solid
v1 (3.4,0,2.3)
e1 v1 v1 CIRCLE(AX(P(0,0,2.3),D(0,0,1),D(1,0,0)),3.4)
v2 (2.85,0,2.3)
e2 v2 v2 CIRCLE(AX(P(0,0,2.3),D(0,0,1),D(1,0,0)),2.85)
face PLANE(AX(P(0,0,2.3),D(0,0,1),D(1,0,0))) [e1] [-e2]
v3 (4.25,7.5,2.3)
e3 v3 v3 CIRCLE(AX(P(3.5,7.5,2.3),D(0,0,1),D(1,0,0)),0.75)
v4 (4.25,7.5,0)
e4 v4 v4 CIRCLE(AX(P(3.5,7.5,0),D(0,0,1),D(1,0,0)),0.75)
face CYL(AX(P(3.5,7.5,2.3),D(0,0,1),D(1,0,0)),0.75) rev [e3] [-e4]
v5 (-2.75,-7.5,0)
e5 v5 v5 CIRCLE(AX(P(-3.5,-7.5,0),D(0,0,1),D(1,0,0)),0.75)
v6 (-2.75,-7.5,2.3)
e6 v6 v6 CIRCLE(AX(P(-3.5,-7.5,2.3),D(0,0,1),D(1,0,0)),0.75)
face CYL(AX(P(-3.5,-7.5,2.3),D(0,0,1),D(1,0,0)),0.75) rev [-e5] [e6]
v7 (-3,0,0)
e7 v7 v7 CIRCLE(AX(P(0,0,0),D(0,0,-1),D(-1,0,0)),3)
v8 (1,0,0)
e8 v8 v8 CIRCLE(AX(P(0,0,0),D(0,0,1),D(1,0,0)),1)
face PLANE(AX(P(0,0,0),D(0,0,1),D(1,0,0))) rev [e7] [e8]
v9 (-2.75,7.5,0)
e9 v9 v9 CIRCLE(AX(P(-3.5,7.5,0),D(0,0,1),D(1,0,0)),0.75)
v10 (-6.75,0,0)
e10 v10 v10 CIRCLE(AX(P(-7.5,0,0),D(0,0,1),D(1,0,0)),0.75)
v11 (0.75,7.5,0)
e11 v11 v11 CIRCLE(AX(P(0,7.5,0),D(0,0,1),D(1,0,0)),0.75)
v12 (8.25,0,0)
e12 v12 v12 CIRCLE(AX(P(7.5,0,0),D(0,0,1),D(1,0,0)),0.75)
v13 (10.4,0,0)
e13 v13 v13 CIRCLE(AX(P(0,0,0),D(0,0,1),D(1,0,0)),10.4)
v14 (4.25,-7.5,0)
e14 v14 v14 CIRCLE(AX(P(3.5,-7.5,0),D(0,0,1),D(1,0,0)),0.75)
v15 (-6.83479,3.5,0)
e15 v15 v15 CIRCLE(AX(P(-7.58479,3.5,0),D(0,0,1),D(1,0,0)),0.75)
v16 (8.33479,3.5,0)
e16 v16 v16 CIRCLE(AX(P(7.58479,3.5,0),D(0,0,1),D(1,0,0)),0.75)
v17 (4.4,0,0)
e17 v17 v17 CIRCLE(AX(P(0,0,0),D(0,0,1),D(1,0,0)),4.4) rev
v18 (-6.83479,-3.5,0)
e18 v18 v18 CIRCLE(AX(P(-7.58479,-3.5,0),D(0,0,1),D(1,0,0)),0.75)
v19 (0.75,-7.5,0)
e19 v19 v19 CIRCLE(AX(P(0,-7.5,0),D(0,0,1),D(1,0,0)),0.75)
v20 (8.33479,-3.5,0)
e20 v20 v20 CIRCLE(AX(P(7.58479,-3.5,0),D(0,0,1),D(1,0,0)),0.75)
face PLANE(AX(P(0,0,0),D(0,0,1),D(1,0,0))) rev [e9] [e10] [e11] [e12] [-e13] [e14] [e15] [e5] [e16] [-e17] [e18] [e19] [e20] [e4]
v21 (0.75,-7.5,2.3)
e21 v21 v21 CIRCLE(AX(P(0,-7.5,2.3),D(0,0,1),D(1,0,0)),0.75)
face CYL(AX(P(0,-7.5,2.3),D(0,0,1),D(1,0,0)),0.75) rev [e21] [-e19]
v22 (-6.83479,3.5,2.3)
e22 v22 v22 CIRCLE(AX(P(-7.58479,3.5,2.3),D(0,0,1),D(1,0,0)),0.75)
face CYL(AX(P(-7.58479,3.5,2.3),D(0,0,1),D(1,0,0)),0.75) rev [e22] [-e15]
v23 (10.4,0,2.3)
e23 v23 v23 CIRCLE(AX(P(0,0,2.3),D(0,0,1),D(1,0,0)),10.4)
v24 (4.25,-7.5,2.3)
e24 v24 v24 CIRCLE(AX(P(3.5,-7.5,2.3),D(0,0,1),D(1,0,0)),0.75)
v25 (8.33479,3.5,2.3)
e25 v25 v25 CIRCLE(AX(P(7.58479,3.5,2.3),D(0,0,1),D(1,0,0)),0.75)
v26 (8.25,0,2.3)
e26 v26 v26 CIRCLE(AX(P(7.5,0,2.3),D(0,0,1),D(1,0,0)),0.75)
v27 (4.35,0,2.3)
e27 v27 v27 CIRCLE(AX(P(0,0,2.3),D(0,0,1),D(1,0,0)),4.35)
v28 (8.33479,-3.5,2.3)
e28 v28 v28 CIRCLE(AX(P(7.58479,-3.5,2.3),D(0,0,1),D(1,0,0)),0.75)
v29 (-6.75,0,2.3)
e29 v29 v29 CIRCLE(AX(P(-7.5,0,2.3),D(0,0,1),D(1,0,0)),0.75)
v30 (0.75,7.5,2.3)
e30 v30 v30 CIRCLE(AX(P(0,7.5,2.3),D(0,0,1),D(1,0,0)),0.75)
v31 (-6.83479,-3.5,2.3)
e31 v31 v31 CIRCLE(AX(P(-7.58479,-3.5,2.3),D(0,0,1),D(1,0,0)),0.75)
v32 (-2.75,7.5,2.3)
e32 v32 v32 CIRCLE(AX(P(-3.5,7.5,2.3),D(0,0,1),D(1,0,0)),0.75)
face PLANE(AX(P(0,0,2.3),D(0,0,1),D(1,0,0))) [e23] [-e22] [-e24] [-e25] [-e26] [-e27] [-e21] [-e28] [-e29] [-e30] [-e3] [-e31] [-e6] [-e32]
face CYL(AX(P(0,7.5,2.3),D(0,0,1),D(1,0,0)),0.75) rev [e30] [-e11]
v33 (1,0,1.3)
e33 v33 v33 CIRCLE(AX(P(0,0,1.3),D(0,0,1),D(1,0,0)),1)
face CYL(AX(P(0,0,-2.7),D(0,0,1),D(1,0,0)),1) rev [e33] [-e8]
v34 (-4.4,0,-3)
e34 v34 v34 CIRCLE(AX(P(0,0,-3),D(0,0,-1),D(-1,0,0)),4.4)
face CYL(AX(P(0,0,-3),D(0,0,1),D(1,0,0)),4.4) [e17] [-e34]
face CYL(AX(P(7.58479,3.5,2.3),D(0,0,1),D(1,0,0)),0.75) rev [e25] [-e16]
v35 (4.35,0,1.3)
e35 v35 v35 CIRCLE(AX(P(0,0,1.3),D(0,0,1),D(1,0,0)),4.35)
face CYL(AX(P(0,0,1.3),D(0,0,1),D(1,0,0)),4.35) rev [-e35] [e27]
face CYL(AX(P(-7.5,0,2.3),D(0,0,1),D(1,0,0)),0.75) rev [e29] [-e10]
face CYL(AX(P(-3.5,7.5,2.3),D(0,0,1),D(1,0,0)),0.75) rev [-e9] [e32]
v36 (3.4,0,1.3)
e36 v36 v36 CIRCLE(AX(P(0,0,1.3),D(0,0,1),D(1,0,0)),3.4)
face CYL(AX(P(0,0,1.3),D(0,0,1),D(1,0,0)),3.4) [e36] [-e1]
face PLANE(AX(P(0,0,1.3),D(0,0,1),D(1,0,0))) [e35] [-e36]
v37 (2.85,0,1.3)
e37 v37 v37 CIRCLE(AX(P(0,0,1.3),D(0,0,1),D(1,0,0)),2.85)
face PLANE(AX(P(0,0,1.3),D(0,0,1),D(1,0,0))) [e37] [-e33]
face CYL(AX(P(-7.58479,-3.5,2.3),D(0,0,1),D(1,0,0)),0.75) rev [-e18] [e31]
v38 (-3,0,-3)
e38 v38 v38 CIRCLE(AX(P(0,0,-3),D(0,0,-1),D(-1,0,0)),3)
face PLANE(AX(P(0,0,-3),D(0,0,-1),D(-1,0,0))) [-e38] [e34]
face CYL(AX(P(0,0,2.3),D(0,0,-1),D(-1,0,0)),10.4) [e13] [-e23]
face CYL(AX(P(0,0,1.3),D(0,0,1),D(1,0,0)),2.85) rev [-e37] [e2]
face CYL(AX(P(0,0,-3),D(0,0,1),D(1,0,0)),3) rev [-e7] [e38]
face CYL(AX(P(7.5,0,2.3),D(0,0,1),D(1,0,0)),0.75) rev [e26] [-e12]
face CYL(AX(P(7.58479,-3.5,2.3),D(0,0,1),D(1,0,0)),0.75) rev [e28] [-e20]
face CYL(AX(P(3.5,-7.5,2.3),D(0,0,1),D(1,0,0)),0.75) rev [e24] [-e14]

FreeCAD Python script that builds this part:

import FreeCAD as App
import Part
import Sketcher
Q = App.Units.Quantity

doc = App.newDocument("Part")
body = doc.addObject("PartDesign::Body", "Body")

# Sketch on XY plane
sketch1 = body.newObject("Sketcher::SketchObject", "Sketch")
sketch1.AttachmentSupport = (doc.getObject("XY_Plane"), [""])
sketch1.MapMode = "FlatFace"
sketch1.addGeometry(Part.Circle(App.Vector(0, 0, 0), App.Vector(0, 0, 1), 10), False)
sketch1.addConstraint(Sketcher.Constraint("Coincident", 0, 3, -1, 1))
sketch1.addConstraint(Sketcher.Constraint("Diameter", 0, Q("20.8 mm")))
pad1 = body.newObject("PartDesign::Pad", "Pad")
pad1.Profile = sketch1
pad1.Length = 2.3

# Sketch on XY plane
sketch2 = body.newObject("Sketcher::SketchObject", "Sketch001")
sketch2.AttachmentSupport = (doc.getObject("XY_Plane"), [""])
sketch2.MapMode = "FlatFace"
sketch2.AttachmentOffset = App.Placement(App.Vector(0, 0, 2.3), App.Rotation())
sketch2.addGeometry(Part.Circle(App.Vector(0, 7.5, 0), App.Vector(0, 0, 1), 0.8), False)
sketch2.addGeometry(Part.Circle(App.Vector(-3.5, 7.5, 0), App.Vector(0, 0, 1), 0.8), False)
sketch2.addGeometry(Part.Circle(App.Vector(3.5, 7.5, 0), App.Vector(0, 0, 1), 0.8), False)
sketch2.addGeometry(Part.Circle(App.Vector(-7.5, 0, 0), App.Vector(0, 0, 1), 0.8), False)
sketch2.addGeometry(Part.Circle(App.Vector(-7.6, 3.5, 0), App.Vector(0, 0, 1), 0.8), False)
sketch2.addGeometry(Part.Circle(App.Vector(-7.6, -3.5, 0), App.Vector(0, 0, 1), 0.8), False)
sketch2.addConstraint(Sketcher.Constraint("Equal", 0, 1))
sketch2.addConstraint(Sketcher.Constraint("Equal", 1, 2))
sketch2.addConstraint(Sketcher.Constraint("Equal", 2, 3))
sketch2.addConstraint(Sketcher.Constraint("Equal", 3, 4))
sketch2.addConstraint(Sketcher.Constraint("Equal", 4, 5))
sketch2.addConstraint(Sketcher.Constraint("Symmetric", 1, 3, 2, 3, -2))
sketch2.addConstraint(Sketcher.Constraint("Symmetric", 4, 3, 5, 3, -1))
sketch2.addConstraint(Sketcher.Constraint("PointOnObject", 0, 3, -2))
sketch2.addConstraint(Sketcher.Constraint("PointOnObject", 3, 3, -1))
sketch2.addConstraint(Sketcher.Constraint("Horizontal", 0, 3, 1, 3))
sketch2.addConstraint(Sketcher.Constraint("Diameter", 0, Q("1.5 mm")))
sketch2.addConstraint(Sketcher.Constraint("DistanceX", 1, 3, 2, 3, Q("7 mm")))
sketch2.addConstraint(Sketcher.Constraint("DistanceX", 3, 3, 1, 3, Q("4 mm")))
sketch2.addConstraint(Sketcher.Constraint("DistanceY", 4, 3, 1, 3, Q("4 mm")))
sketch2.addConstraint(Sketcher.Constraint("DistanceY", 5, 3, 4, 3, Q("7 mm")))
sketch2.addConstraint(Sketcher.Constraint("DistanceX", 4, 3, -1, 1, Q("7.58479 mm")))
doc.recompute()
hole = body.newObject("PartDesign::Hole", "Hole")
hole.Profile = sketch2
hole.ThreadType = "None"
hole.Diameter = 1.5
hole.DepthType = "ThroughAll"
doc.recompute()

mirrored = body.newObject("PartDesign::Mirrored", "Mirrored")
mirrored.Originals = [hole]
mirrored.MirrorPlane = (doc.getObject("XZ_Plane"), [""])
body.Tip = mirrored
doc.recompute()

mirrored2 = body.newObject("PartDesign::Mirrored", "Mirrored001")
mirrored2.Originals = [hole]
mirrored2.MirrorPlane = (doc.getObject("YZ_Plane"), [""])
body.Tip = mirrored2

# Sketch on XY plane
sketch3 = body.newObject("Sketcher::SketchObject", "Sketch002")
sketch3.AttachmentSupport = (doc.getObject("XY_Plane"), [""])
sketch3.MapMode = "FlatFace"
sketch3.addGeometry(Part.Circle(App.Vector(0, 0, 0), App.Vector(0, 0, 1), 4.4), False)
sketch3.addGeometry(Part.Circle(App.Vector(0, 0, 0), App.Vector(0, 0, 1), 3), False)
sketch3.addConstraint(Sketcher.Constraint("Coincident", 0, 3, -1, 1))
sketch3.addConstraint(Sketcher.Constraint("Coincident", 1, 3, -1, 1))
sketch3.addConstraint(Sketcher.Constraint("Diameter", 1, Q("6 mm")))
sketch3.addConstraint(Sketcher.Constraint("Diameter", 0, Q("8.8 mm")))
pad2 = body.newObject("PartDesign::Pad", "Pad001")
pad2.Profile = sketch3
pad2.Length = 3
pad2.Reversed = True

# Sketch on XY plane
sketch4 = body.newObject("Sketcher::SketchObject", "Sketch003")
sketch4.AttachmentSupport = (doc.getObject("XY_Plane"), [""])
sketch4.MapMode = "FlatFace"
sketch4.AttachmentOffset = App.Placement(App.Vector(0, 0, 2.3), App.Rotation())
sketch4.addGeometry(Part.Circle(App.Vector(0, 0, 0), App.Vector(0, 0, 1), 4.3), False)
sketch4.addGeometry(Part.Circle(App.Vector(0, 0, 0), App.Vector(0, 0, 1), 3.4), False)
sketch4.addConstraint(Sketcher.Constraint("Coincident", 0, 3, -1, 1))
sketch4.addConstraint(Sketcher.Constraint("Coincident", 1, 3, -1, 1))
sketch4.addConstraint(Sketcher.Constraint("Diameter", 0, Q("8.7 mm")))
sketch4.addConstraint(Sketcher.Constraint("Diameter", 1, Q("6.8 mm")))
pocket1 = body.newObject("PartDesign::Pocket", "Pocket")
pocket1.Profile = sketch4
pocket1.Length = 1

# Sketch on XY plane
sketch5 = body.newObject("Sketcher::SketchObject", "Sketch004")
sketch5.AttachmentSupport = (doc.getObject("XY_Plane"), [""])
sketch5.MapMode = "FlatFace"
sketch5.AttachmentOffset = App.Placement(App.Vector(0, 0, 2.3), App.Rotation())
sketch5.addGeometry(Part.Circle(App.Vector(0, 0, 0), App.Vector(0, 0, 1), 2.9), False)
sketch5.addConstraint(Sketcher.Constraint("Coincident", 0, 3, -1, 1))
sketch5.addConstraint(Sketcher.Constraint("Diameter", 0, Q("5.7 mm")))
pocket2 = body.newObject("PartDesign::Pocket", "Pocket001")
pocket2.Profile = sketch5
pocket2.Length = 1

# Sketch on XY plane
sketch6 = body.newObject("Sketcher::SketchObject", "Sketch005")
sketch6.AttachmentSupport = (doc.getObject("XY_Plane"), [""])
sketch6.MapMode = "FlatFace"
sketch6.AttachmentOffset = App.Placement(App.Vector(0, 0, 1.3), App.Rotation())
sketch6.addGeometry(Part.Circle(App.Vector(0, 0, 0), App.Vector(0, 0, 1), 1), False)
sketch6.addConstraint(Sketcher.Constraint("Coincident", 0, 3, -1, 1))
sketch6.addConstraint(Sketcher.Constraint("Diameter", 0, Q("2 mm")))
pocket3 = body.newObject("PartDesign::Pocket", "Pocket002")
pocket3.Profile = sketch6
pocket3.Length = 4

doc.recompute()
